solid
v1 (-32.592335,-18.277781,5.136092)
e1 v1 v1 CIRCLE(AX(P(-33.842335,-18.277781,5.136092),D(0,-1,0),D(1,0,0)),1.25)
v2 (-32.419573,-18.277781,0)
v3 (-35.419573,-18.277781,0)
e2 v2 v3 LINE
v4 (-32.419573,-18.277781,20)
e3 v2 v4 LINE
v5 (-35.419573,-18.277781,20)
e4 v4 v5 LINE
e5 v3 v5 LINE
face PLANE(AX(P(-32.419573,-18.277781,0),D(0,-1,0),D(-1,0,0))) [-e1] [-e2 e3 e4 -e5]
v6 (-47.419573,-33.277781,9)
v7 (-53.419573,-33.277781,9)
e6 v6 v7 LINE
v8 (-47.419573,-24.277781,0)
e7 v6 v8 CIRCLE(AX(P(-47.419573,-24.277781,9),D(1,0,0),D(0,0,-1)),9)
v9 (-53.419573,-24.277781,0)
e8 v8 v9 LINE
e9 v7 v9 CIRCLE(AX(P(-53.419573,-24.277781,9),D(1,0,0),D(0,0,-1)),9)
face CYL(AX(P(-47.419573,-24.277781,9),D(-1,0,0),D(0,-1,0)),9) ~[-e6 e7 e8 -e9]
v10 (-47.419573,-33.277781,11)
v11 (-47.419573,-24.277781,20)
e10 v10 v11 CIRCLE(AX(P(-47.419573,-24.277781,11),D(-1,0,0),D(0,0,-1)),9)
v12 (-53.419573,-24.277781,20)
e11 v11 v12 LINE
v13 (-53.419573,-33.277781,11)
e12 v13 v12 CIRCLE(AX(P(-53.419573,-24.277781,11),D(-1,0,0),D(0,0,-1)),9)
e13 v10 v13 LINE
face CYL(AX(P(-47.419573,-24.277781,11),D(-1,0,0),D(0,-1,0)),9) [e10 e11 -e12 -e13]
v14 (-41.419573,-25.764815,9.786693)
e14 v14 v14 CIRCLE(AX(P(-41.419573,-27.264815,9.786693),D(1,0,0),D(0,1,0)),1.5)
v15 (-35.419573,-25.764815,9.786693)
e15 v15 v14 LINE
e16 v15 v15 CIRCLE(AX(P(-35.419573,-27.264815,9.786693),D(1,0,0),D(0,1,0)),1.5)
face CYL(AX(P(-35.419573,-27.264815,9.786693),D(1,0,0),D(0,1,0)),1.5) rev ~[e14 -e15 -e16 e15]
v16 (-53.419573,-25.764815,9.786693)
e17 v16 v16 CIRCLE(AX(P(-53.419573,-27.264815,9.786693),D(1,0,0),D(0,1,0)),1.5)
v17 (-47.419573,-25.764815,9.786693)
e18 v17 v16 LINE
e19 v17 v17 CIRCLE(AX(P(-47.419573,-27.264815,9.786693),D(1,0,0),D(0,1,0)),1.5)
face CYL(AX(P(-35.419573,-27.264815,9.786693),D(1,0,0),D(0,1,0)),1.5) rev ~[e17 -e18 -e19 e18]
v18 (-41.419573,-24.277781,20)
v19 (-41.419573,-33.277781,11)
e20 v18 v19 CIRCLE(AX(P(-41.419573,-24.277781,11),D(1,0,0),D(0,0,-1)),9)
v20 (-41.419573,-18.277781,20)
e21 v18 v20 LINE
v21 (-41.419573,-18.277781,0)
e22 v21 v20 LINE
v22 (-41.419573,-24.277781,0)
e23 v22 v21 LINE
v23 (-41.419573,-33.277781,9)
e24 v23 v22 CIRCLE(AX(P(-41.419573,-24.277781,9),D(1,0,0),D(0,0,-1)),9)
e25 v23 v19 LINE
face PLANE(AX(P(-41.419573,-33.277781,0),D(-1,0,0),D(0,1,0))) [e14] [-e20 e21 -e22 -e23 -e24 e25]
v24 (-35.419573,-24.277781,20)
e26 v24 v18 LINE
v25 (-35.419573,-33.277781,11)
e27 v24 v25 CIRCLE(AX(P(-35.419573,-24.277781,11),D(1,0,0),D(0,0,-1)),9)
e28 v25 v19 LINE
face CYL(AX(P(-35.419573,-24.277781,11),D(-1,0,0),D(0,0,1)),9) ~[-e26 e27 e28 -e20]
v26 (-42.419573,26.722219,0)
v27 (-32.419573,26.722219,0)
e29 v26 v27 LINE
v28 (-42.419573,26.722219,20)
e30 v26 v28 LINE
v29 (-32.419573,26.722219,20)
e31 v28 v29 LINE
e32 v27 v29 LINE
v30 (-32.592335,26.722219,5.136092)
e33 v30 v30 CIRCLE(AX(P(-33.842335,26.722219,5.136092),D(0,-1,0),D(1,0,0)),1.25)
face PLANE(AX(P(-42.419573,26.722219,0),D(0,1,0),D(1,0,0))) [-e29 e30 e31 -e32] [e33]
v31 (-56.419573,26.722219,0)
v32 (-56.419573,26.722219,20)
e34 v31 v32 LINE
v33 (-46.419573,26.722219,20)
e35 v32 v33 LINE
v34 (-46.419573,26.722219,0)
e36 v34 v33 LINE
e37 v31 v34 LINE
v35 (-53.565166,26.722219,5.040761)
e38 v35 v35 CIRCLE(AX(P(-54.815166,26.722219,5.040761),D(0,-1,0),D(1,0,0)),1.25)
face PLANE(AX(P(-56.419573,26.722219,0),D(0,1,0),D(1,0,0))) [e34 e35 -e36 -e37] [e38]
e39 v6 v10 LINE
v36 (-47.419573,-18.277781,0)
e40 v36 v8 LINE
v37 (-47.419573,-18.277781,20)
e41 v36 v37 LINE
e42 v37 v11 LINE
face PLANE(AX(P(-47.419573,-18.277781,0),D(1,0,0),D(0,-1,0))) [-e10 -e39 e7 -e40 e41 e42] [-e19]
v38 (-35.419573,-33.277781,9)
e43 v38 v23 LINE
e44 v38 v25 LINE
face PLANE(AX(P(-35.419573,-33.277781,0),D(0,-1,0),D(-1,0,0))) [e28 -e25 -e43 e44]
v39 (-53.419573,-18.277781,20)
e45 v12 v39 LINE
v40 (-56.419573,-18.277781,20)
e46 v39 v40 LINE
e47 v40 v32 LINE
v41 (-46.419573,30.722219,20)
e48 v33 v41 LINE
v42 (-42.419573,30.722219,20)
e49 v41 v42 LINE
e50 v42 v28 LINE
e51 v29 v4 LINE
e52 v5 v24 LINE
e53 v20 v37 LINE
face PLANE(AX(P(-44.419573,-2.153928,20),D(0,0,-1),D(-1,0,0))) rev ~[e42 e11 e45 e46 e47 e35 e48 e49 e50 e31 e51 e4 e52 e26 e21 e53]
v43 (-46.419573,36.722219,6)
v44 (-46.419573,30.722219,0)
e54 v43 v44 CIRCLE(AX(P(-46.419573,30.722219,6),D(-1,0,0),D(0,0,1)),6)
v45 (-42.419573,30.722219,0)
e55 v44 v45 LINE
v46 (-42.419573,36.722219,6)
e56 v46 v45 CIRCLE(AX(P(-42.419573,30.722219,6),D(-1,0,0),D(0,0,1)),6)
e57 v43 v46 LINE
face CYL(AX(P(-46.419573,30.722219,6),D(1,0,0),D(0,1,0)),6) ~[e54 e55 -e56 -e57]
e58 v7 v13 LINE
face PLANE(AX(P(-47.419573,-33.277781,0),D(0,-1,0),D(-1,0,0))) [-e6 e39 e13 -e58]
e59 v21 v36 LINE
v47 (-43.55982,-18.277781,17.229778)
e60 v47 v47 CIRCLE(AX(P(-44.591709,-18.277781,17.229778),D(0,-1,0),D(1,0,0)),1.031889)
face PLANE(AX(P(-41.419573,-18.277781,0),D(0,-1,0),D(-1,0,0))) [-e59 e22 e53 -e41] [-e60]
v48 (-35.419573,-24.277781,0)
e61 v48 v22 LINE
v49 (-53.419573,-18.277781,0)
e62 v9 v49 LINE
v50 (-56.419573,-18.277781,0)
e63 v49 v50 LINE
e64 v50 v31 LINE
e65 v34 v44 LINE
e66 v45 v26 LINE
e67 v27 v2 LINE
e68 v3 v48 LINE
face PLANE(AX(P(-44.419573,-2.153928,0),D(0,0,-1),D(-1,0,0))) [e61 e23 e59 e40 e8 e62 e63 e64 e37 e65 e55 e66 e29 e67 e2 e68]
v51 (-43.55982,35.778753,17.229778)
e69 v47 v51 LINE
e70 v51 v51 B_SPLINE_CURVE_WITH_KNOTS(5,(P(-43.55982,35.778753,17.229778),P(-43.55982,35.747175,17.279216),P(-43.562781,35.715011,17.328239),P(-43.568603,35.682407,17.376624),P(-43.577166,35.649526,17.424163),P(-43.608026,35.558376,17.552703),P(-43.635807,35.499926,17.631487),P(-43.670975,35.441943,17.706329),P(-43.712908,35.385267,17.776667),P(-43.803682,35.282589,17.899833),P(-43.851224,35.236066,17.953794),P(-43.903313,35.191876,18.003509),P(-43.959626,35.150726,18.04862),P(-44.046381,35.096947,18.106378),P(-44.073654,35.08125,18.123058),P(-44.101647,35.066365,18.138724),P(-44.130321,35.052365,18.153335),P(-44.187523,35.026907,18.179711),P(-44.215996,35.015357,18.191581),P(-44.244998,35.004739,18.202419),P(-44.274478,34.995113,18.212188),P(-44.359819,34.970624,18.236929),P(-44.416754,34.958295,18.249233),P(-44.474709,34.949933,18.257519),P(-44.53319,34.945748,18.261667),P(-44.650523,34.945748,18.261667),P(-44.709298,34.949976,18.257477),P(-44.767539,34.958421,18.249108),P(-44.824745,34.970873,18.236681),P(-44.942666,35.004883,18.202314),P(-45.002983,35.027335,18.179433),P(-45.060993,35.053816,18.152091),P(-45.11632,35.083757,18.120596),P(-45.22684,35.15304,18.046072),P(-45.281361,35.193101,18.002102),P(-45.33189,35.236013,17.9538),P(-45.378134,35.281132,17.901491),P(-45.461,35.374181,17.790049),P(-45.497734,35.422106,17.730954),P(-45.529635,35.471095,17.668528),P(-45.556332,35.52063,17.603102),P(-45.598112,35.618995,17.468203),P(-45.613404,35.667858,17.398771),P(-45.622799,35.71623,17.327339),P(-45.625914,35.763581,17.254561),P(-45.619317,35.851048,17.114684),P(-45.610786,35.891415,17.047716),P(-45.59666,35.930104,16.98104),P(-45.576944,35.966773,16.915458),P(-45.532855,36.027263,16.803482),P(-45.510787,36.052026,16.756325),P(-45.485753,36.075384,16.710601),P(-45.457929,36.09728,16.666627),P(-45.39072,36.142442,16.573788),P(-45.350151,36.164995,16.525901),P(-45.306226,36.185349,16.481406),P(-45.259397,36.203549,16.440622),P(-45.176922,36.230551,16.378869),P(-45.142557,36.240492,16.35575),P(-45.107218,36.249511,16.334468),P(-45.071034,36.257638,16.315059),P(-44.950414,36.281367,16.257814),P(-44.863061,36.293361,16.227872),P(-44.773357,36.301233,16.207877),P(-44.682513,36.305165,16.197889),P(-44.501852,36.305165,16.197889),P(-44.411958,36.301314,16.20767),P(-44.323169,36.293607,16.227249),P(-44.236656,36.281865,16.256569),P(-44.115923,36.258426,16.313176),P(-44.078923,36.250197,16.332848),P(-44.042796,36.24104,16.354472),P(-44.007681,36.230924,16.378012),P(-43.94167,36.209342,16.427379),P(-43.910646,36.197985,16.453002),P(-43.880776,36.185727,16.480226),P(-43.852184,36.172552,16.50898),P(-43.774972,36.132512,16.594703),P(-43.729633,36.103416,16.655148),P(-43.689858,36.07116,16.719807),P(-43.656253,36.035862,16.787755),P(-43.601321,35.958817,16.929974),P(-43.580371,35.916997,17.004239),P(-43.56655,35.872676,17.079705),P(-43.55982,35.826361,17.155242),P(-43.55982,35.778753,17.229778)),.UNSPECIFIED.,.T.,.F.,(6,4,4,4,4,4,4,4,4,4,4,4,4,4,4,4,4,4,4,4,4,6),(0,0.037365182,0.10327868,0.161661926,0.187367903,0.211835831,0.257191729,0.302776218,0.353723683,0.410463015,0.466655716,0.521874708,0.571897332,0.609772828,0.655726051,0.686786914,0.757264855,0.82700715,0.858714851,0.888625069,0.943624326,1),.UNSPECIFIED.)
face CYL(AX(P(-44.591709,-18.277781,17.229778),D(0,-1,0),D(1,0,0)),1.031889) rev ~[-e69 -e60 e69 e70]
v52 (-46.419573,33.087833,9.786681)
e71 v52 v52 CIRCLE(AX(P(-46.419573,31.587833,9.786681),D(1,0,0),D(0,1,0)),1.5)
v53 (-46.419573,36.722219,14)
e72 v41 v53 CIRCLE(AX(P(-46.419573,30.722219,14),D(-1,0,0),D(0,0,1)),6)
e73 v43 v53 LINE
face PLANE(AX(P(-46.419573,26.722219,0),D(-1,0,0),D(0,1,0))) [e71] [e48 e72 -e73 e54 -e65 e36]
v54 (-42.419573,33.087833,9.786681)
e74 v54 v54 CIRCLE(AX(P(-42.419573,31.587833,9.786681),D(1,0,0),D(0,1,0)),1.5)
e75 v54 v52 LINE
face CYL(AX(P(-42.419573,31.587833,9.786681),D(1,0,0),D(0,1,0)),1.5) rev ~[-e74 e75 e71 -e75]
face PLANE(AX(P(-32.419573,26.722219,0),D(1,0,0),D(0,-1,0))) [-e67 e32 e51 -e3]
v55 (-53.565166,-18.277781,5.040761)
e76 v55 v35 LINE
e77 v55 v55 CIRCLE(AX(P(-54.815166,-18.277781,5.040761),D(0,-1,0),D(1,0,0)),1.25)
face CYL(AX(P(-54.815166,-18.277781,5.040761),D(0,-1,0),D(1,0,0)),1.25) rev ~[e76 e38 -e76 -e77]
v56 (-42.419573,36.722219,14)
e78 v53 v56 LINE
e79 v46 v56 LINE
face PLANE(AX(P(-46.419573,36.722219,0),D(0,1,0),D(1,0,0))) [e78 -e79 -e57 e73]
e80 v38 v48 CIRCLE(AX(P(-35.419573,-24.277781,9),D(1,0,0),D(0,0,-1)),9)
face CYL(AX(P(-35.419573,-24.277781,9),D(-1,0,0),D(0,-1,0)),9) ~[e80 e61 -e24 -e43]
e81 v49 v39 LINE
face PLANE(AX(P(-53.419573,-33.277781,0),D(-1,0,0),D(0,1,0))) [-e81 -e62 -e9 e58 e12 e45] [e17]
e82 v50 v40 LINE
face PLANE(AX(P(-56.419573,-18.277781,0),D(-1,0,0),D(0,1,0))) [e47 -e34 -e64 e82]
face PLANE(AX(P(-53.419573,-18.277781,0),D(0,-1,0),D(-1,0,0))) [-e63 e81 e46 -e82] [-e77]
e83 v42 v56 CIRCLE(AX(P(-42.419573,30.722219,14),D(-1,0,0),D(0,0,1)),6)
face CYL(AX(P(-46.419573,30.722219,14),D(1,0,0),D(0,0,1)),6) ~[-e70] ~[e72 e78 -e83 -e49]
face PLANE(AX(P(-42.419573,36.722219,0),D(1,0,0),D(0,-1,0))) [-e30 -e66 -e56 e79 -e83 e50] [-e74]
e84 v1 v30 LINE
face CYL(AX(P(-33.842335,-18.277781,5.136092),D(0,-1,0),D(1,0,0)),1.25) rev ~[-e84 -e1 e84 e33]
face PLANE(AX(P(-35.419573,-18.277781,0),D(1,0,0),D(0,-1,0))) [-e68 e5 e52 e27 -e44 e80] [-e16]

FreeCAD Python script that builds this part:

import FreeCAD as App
import Part
import Sketcher

V = App.Vector
Q = App.Units.Quantity


def edges_at(feature, points):
    """Names of the edges that pass closest to the given points."""
    edges = feature.Shape.Edges
    near = lambda p: min(range(len(edges)), key=lambda i: edges[i].distToShape(Part.Vertex(*p))[0])
    return sorted({f"Edge{near(p) + 1}" for p in points})


def add_polygon(sketch, points):
    """Adds a closed chain of lines whose ends are joined by coincident constraints."""
    first, n = sketch.GeometryCount, len(points)
    for a, b in zip(points, points[1:] + points[:1]):
        sketch.addGeometry(Part.LineSegment(App.Vector(*a, 0), App.Vector(*b, 0)), False)
    for i in range(n):
        sketch.addConstraint(Sketcher.Constraint("Coincident", first + i, 2, first + (i + 1) % n, 1))

doc = App.newDocument("Part")
params = doc.addObject("Spreadsheet::Sheet", "Params")
for row, (alias, value) in enumerate([
    ("sketch1_width", "10 mm"),
    ("sketch1_width2", "3 mm"),
    ("sketch1_width3", "6 mm"),
    ("sketch1_height", "45 mm"),
    ("sketch1_height2", "15 mm"),
    ("pad1_length", "20 mm"),
    ("fillet_radius", "9 mm"),
    ("fillet2_radius", "9 mm"),
    ("fillet3_radius", "9 mm"),
    ("fillet4_radius", "9 mm"),
    ("fillet5_radius", "6 mm"),
    ("fillet6_radius", "6 mm"),
    ("sketch2_diameter", "3 mm"),
    ("sketch3_diameter", "3 mm"),
    ("sketch4_diameter", "2.5 mm"),
], start=1):
    params.set(f"A{row}", alias)
    params.set(f"B{row}", "=" + value)
    params.setAlias(f"B{row}", alias)

body = doc.addObject("PartDesign::Body", "Body")

sketch1 = body.newObject("Sketcher::SketchObject", "Sketch")
sketch1.AttachmentSupport = (doc.getObject("XY_Plane"), [""])
sketch1.MapMode = "FlatFace"
add_polygon(sketch1, [(-46.4, 26.7), (-56.4, 26.7), (-56.4, -18.3), (-53.4, -18.3), (-53.4, -33.3), (-47.4, -33.3), (-47.4, -18.3), (-41.4, -18.3), (-41.4, -33.3), (-35.4, -33.3), (-35.4, -18.3), (-32.4, -18.3), (-32.4, 26.7), (-42.4, 26.7), (-42.4, 36.7), (-46.4, 36.7)])
sketch1.addConstraint(Sketcher.Constraint("Horizontal", 0))
sketch1.addConstraint(Sketcher.Constraint("Vertical", 1))
sketch1.addConstraint(Sketcher.Constraint("Horizontal", 2))
sketch1.addConstraint(Sketcher.Constraint("Vertical", 3))
sketch1.addConstraint(Sketcher.Constraint("Horizontal", 4))
sketch1.addConstraint(Sketcher.Constraint("Vertical", 5))
sketch1.addConstraint(Sketcher.Constraint("Horizontal", 6))
sketch1.addConstraint(Sketcher.Constraint("Vertical", 7))
sketch1.addConstraint(Sketcher.Constraint("Horizontal", 8))
sketch1.addConstraint(Sketcher.Constraint("Vertical", 9))
sketch1.addConstraint(Sketcher.Constraint("Horizontal", 10))
sketch1.addConstraint(Sketcher.Constraint("Vertical", 11))
sketch1.addConstraint(Sketcher.Constraint("Horizontal", 12))
sketch1.addConstraint(Sketcher.Constraint("Vertical", 13))
sketch1.addConstraint(Sketcher.Constraint("Horizontal", 14))
sketch1.addConstraint(Sketcher.Constraint("Vertical", 15))
sketch1.addConstraint(Sketcher.Constraint("Horizontal", 2, 2, 5, 2))
sketch1.addConstraint(Sketcher.Constraint("Horizontal", 4, 2, 7, 2))
sketch1.addConstraint(Sketcher.Constraint("Horizontal", 6, 2, 9, 2))
sketch1.addConstraint(Sketcher.Constraint("Horizontal", 0, 2, 11, 2))
sketch1.addConstraint(Sketcher.Constraint("Equal", 4, 6))
sketch1.addConstraint(Sketcher.Constraint("Equal", 6, 8))
sketch1.addConstraint(Sketcher.Constraint("Equal", 2, 10))
sketch1.addConstraint(Sketcher.Constraint("Equal", 0, 12))
sketch1.addConstraint(Sketcher.Constraint("Equal", 12, 13))
sketch1.addConstraint(Sketcher.Constraint("DistanceX", 0, 2, 0, 1, Q("10 mm")))
sketch1.addConstraint(Sketcher.Constraint("DistanceX", 2, 1, 2, 2, Q("3 mm")))
sketch1.addConstraint(Sketcher.Constraint("DistanceX", 4, 1, 4, 2, Q("6 mm")))
sketch1.addConstraint(Sketcher.Constraint("DistanceY", 1, 2, 1, 1, Q("45 mm")))
sketch1.addConstraint(Sketcher.Constraint("DistanceY", 3, 2, 3, 1, Q("15 mm")))
sketch1.addConstraint(Sketcher.Constraint("DistanceY", -1, 1, 0, 2, Q("26.722219 mm")))
sketch1.addConstraint(Sketcher.Constraint("DistanceX", 0, 2, -1, 1, Q("56.419573 mm")))
sketch1.setExpression("Constraints[41]", "Params.sketch1_width")
sketch1.setExpression("Constraints[42]", "Params.sketch1_width2")
sketch1.setExpression("Constraints[43]", "Params.sketch1_width3")
sketch1.setExpression("Constraints[44]", "Params.sketch1_height")
sketch1.setExpression("Constraints[45]", "Params.sketch1_height2")
pad1 = body.newObject("PartDesign::Pad", "Pad")
pad1.Profile = sketch1
pad1.setExpression("Length", "Params.pad1_length")
doc.recompute()

fillet = body.newObject("PartDesign::Fillet", "Fillet")
fillet.Base = (pad1, edges_at(pad1, [(-50.42, -33.278, 0)]))
fillet.setExpression("Radius", "Params.fillet_radius")
doc.recompute()

fillet2 = body.newObject("PartDesign::Fillet", "Fillet001")
fillet2.Base = (fillet, edges_at(fillet, [(-50.42, -33.278, 20)]))
fillet2.setExpression("Radius", "Params.fillet2_radius")
doc.recompute()

fillet3 = body.newObject("PartDesign::Fillet", "Fillet002")
fillet3.Base = (fillet2, edges_at(fillet2, [(-38.42, -33.278, 20)]))
fillet3.setExpression("Radius", "Params.fillet3_radius")
doc.recompute()

fillet4 = body.newObject("PartDesign::Fillet", "Fillet003")
fillet4.Base = (fillet3, edges_at(fillet3, [(-38.42, -33.278, 0)]))
fillet4.setExpression("Radius", "Params.fillet4_radius")
doc.recompute()

fillet5 = body.newObject("PartDesign::Fillet", "Fillet004")
fillet5.Base = (fillet4, edges_at(fillet4, [(-44.42, 36.722, 20)]))
fillet5.setExpression("Radius", "Params.fillet5_radius")
doc.recompute()

fillet6 = body.newObject("PartDesign::Fillet", "Fillet005")
fillet6.Base = (fillet5, edges_at(fillet5, [(-44.42, 36.722, 0)]))
fillet6.setExpression("Radius", "Params.fillet6_radius")

sketch2 = body.newObject("Sketcher::SketchObject", "Sketch001")
sketch2.AttachmentSupport = (doc.getObject("YZ_Plane"), [""])
sketch2.MapMode = "FlatFace"
sketch2.AttachmentOffset = App.Placement(V(0, 0, -42.419573), App.Rotation())
sketch2.addGeometry(Part.Circle(V(31.6, 9.8, 0), V(0, 0, 1), 1.5), False)
sketch2.addConstraint(Sketcher.Constraint("Diameter", 0, Q("3 mm")))
sketch2.addConstraint(Sketcher.Constraint("DistanceY", -1, 1, 0, 3, Q("9.786681 mm")))
sketch2.addConstraint(Sketcher.Constraint("DistanceX", -1, 1, 0, 3, Q("31.587833 mm")))
sketch2.setExpression("Constraints[0]", "Params.sketch2_diameter")
pocket1 = body.newObject("PartDesign::Pocket", "Pocket")
pocket1.Profile = sketch2
pocket1.Type = "ThroughAll"

sketch3 = body.newObject("Sketcher::SketchObject", "Sketch002")
sketch3.AttachmentSupport = (doc.getObject("YZ_Plane"), [""])
sketch3.MapMode = "FlatFace"
sketch3.AttachmentOffset = App.Placement(V(0, 0, -35.419573), App.Rotation())
sketch3.addGeometry(Part.Circle(V(-27.3, 9.8, 0), V(0, 0, 1), 1.5), False)
sketch3.addConstraint(Sketcher.Constraint("Diameter", 0, Q("3 mm")))
sketch3.addConstraint(Sketcher.Constraint("DistanceX", 0, 3, -1, 1, Q("27.264815 mm")))
sketch3.addConstraint(Sketcher.Constraint("DistanceY", -1, 1, 0, 3, Q("9.786693 mm")))
sketch3.setExpression("Constraints[0]", "Params.sketch3_diameter")
pocket2 = body.newObject("PartDesign::Pocket", "Pocket001")
pocket2.Profile = sketch3
pocket2.Type = "ThroughAll"

sketch4 = body.newObject("Sketcher::SketchObject", "Sketch003")
sketch4.AttachmentSupport = (doc.getObject("XZ_Plane"), [""])
sketch4.MapMode = "FlatFace"
sketch4.AttachmentOffset = App.Placement(V(0, 0, 18.277781), App.Rotation())
sketch4.addGeometry(Part.Circle(V(-54.8, 5, 0), V(0, 0, 1), 1.2), False)
sketch4.addGeometry(Part.Circle(V(-33.8, 5.1, 0), V(0, 0, 1), 1.2), False)
sketch4.addConstraint(Sketcher.Constraint("Equal", 0, 1))
sketch4.addConstraint(Sketcher.Constraint("Diameter", 0, Q("2.5 mm")))
sketch4.addConstraint(Sketcher.Constraint("DistanceY", -1, 1, 0, 3, Q("5.040761 mm")))
sketch4.addConstraint(Sketcher.Constraint("DistanceY", -1, 1, 1, 3, Q("5.136092 mm")))
sketch4.addConstraint(Sketcher.Constraint("DistanceX", 0, 3, 1, 3, Q("20.972831 mm")))
sketch4.addConstraint(Sketcher.Constraint("DistanceX", 0, 3, -1, 1, Q("54.815166 mm")))
sketch4.setExpression("Constraints[1]", "Params.sketch4_diameter")
pocket3 = body.newObject("PartDesign::Pocket", "Pocket002")
pocket3.Profile = sketch4
pocket3.Type = "ThroughAll"

sketch5 = body.newObject("Sketcher::SketchObject", "Sketch004")
sketch5.AttachmentSupport = (doc.getObject("XZ_Plane"), [""])
sketch5.MapMode = "FlatFace"
sketch5.AttachmentOffset = App.Placement(V(0, 0, 18.277781), App.Rotation())
sketch5.addGeometry(Part.Circle(V(-44.6, 17.2, 0), V(0, 0, 1), 1), False)
sketch5.addConstraint(Sketcher.Constraint("Diameter", 0, Q("2.063778 mm")))
sketch5.addConstraint(Sketcher.Constraint("DistanceX", 0, 3, -1, 1, Q("44.591709 mm")))
sketch5.addConstraint(Sketcher.Constraint("DistanceY", -1, 1, 0, 3, Q("17.229778 mm")))
pocket4 = body.newObject("PartDesign::Pocket", "Pocket003")
pocket4.Profile = sketch5
pocket4.Type = "ThroughAll"

doc.recompute()
